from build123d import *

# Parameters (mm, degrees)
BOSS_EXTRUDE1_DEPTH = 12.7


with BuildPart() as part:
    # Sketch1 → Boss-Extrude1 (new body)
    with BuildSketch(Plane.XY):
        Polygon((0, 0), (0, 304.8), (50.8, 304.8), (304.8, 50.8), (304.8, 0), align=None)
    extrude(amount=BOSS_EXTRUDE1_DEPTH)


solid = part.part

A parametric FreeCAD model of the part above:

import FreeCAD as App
import Part
import Sketcher
from FreeCAD import Vector
Q = App.Units.Quantity


def add_polygon(sketch, points):
    """Adds a closed chain of lines whose ends are joined by coincident constraints."""
    first, n = sketch.GeometryCount, len(points)
    for a, b in zip(points, points[1:] + points[:1]):
        sketch.addGeometry(Part.LineSegment(App.Vector(*a, 0), App.Vector(*b, 0)), False)
    for i in range(n):
        sketch.addConstraint(Sketcher.Constraint("Coincident", first + i, 2, first + (i + 1) % n, 1))

doc = App.newDocument("Part")
params = doc.addObject("Spreadsheet::Sheet", "Params")
for row, (alias, value) in enumerate([
    ("sketch1_width", "12 in"),
    ("sketch1_width2", "2 in"),
    ("pad1_length", "0.5 in"),
], start=1):
    params.set(f"A{row}", alias)
    params.set(f"B{row}", "=" + value)
    params.setAlias(f"B{row}", alias)

body = doc.addObject("PartDesign::Body", "Body")

sketch1 = body.newObject("Sketcher::SketchObject", "Sketch")
sketch1.AttachmentSupport = (doc.getObject("XY_Plane"), [""])
sketch1.MapMode = "FlatFace"
add_polygon(sketch1, [(0, 304.8), (0, 0), (304.8, 0), (304.8, 50.8), (50.8, 304.8)])
sketch1.addConstraint([
    Sketcher.Constraint("Vertical", 0),
    Sketcher.Constraint("Horizontal", 1),
    Sketcher.Constraint("Vertical", 2),
    Sketcher.Constraint("Horizontal", 4),
    Sketcher.Constraint("Coincident", 0, 2, -1, 1),
    Sketcher.Constraint("Equal", 1, 0),
    Sketcher.Constraint("Equal", 4, 2),
    Sketcher.Constraint("DistanceX", 1, 1, 1, 2, Q("12 in")),
    Sketcher.Constraint("DistanceX", 4, 2, 4, 1, Q("2 in")),
])
sketch1.setExpression("Constraints[12]", "Params.sketch1_width")
sketch1.setExpression("Constraints[13]", "Params.sketch1_width2")
pad1 = body.newObject("PartDesign::Pad", "Pad")
pad1.Profile = sketch1
pad1.setExpression("Length", "Params.pad1_length")

doc.recompute()
